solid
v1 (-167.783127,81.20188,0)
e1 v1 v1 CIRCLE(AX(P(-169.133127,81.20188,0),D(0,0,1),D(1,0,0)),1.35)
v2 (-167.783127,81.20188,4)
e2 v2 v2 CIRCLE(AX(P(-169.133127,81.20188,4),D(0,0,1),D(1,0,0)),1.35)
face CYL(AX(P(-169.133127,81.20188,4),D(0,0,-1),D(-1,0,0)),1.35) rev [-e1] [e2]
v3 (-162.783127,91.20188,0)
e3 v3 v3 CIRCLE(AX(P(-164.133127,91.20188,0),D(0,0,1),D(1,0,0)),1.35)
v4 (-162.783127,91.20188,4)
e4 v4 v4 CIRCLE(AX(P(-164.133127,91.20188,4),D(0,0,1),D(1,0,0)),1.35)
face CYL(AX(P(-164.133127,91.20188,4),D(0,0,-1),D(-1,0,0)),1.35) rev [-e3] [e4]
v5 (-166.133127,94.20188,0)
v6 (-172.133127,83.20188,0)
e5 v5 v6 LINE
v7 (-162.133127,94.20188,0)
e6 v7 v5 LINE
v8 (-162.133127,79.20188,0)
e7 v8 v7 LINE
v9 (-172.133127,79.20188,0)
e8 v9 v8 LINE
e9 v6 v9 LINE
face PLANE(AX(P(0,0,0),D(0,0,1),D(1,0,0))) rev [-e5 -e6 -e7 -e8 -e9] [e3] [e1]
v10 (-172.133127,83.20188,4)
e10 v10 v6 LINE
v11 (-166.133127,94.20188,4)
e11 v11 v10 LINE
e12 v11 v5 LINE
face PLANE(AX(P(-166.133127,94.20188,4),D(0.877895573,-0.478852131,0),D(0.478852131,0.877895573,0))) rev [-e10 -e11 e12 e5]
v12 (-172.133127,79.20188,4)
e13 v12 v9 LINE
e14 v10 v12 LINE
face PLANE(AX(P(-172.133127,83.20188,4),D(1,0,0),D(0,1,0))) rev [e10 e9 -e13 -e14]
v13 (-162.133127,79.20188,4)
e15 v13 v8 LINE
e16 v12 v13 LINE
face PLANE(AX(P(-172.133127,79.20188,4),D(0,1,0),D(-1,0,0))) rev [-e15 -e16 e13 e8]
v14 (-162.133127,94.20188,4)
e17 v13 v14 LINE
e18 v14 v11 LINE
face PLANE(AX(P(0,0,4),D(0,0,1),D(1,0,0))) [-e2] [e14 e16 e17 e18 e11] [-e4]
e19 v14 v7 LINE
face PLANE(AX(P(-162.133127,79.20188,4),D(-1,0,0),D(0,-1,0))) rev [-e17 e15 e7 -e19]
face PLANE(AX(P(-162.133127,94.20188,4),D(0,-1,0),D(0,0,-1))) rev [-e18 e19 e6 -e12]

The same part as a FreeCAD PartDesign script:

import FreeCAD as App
import Part
import Sketcher
Q = App.Units.Quantity

doc = App.newDocument("Part")
params = doc.addObject("Spreadsheet::Sheet", "Params")
for row, (alias, value) in enumerate([
    ("sketch1_diameter", "2.7 mm"),
    ("sketch1_width", "10 mm"),
    ("sketch1_width2", "4 mm"),
    ("sketch1_height", "15 mm"),
    ("pad1_length", "4 mm"),
], start=1):
    params.set(f"A{row}", alias)
    params.set(f"B{row}", "=" + value)
    params.setAlias(f"B{row}", alias)

body = doc.addObject("PartDesign::Body", "Body")

# Sketch on XY plane
sketch1 = body.newObject("Sketcher::SketchObject", "Sketch")
sketch1.AttachmentSupport = (doc.getObject("XY_Plane"), [""])
sketch1.MapMode = "FlatFace"
sketch1.addGeometry([
    Part.LineSegment(App.Vector(-172.133127, 79.20188, 0), App.Vector(-162.133127, 79.20188, 0)),  # 0
    Part.LineSegment(App.Vector(-162.133127, 79.20188, 0), App.Vector(-162.133127, 94.20188, 0)),  # 1
    Part.LineSegment(App.Vector(-162.133127, 94.20188, 0), App.Vector(-166.133127, 94.20188, 0)),  # 2
    Part.LineSegment(App.Vector(-166.133127, 94.20188, 0), App.Vector(-172.133127, 83.20188, 0)),  # 3
    Part.LineSegment(App.Vector(-172.133127, 83.20188, 0), App.Vector(-172.133127, 79.20188, 0)),  # 4
    Part.Circle(App.Vector(-169.133127, 81.20188, 0), App.Vector(0, 0, 1), 1.35),  # 5
    Part.Circle(App.Vector(-164.133127, 91.20188, 0), App.Vector(0, 0, 1), 1.35),  # 6
], False)
sketch1.addConstraint([
    Sketcher.Constraint("Coincident", 0, 2, 1, 1),
    Sketcher.Constraint("Coincident", 1, 2, 2, 1),
    Sketcher.Constraint("Coincident", 2, 2, 3, 1),
    Sketcher.Constraint("Coincident", 3, 2, 4, 1),
    Sketcher.Constraint("Coincident", 4, 2, 0, 1),
    Sketcher.Constraint("Horizontal", 0),
    Sketcher.Constraint("Vertical", 1),
    Sketcher.Constraint("Horizontal", 2),
    Sketcher.Constraint("Vertical", 4),
    Sketcher.Constraint("Equal", 5, 6),
    Sketcher.Constraint("Equal", 2, 4),
    Sketcher.Constraint("Diameter", 5, Q("2.7 mm")),
    Sketcher.Constraint("DistanceX", 0, 1, 0, 2, Q("10 mm")),
    Sketcher.Constraint("DistanceX", 2, 2, 2, 1, Q("4 mm")),
    Sketcher.Constraint("DistanceY", 1, 1, 1, 2, Q("15 mm")),
    Sketcher.Constraint("DistanceX", 5, 3, 6, 3, Q("5 mm")),
    Sketcher.Constraint("DistanceY", 5, 3, 6, 3, Q("10 mm")),
    Sketcher.Constraint("DistanceX", 5, 3, 0, 2, Q("7 mm")),
    Sketcher.Constraint("DistanceY", 0, 2, 5, 3, Q("2 mm")),
    Sketcher.Constraint("DistanceY", -1, 1, 5, 3, Q("81.20188 mm")),
    Sketcher.Constraint("DistanceX", 5, 3, -1, 1, Q("169.133127 mm")),
])
sketch1.setExpression("Constraints[11]", "Params.sketch1_diameter")
sketch1.setExpression("Constraints[12]", "Params.sketch1_width")
sketch1.setExpression("Constraints[13]", "Params.sketch1_width2")
sketch1.setExpression("Constraints[14]", "Params.sketch1_height")
pad1 = body.newObject("PartDesign::Pad", "Pad")
pad1.Profile = sketch1
pad1.setExpression("Length", "Params.pad1_length")

doc.recompute()
